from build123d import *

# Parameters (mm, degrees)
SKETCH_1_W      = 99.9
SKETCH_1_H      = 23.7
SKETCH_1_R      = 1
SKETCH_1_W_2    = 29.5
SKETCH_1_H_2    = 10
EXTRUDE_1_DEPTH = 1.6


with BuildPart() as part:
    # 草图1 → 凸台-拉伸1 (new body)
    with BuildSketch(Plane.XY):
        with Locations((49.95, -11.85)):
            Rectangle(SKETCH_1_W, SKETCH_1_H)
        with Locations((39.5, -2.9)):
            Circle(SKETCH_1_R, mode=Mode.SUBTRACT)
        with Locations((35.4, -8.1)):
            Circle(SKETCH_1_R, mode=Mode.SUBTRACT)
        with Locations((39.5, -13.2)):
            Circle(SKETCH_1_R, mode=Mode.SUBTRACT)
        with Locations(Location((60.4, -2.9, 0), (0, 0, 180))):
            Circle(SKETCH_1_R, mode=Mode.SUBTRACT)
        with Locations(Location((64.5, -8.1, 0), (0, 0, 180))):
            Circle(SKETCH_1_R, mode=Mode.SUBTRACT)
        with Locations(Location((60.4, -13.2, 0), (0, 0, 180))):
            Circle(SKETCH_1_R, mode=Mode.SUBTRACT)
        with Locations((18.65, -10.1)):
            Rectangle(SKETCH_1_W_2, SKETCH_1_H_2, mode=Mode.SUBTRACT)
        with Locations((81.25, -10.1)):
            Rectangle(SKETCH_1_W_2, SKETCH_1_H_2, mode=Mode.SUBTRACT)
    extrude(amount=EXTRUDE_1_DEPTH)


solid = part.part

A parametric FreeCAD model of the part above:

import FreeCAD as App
import Part
import Sketcher
from FreeCAD import Vector
Q = App.Units.Quantity

doc = App.newDocument("Part")
body = doc.addObject("PartDesign::Body", "Body")

sketch1 = body.newObject("Sketcher::SketchObject", "Sketch")
sketch1.AttachmentSupport = (doc.getObject("XY_Plane"), [""])
sketch1.MapMode = "FlatFace"
sketch1.addGeometry(Part.LineSegment(Vector(0, 0, 0), Vector(0, -23.7, 0)), False)
sketch1.addGeometry(Part.LineSegment(Vector(0, -23.7, 0), Vector(99.9, -23.7, 0)), False)
sketch1.addGeometry(Part.LineSegment(Vector(99.9, -23.7, 0), Vector(99.9, 0, 0)), False)
sketch1.addGeometry(Part.LineSegment(Vector(99.9, 0, 0), Vector(0, 0, 0)), False)
sketch1.addGeometry(Part.Circle(Vector(39.5, -13.2, 0), Vector(0, 0, 1), 1), False)
sketch1.addGeometry(Part.LineSegment(Vector(33.4, -15.1, 0), Vector(3.9, -15.1, 0)), False)
sketch1.addGeometry(Part.LineSegment(Vector(3.9, -15.1, 0), Vector(3.9, -5.1, 0)), False)
sketch1.addGeometry(Part.LineSegment(Vector(3.9, -5.1, 0), Vector(33.4, -5.1, 0)), False)
sketch1.addGeometry(Part.LineSegment(Vector(33.4, -5.1, 0), Vector(33.4, -15.1, 0)), False)
sketch1.addGeometry(Part.Circle(Vector(60.4, -13.2, 0), Vector(0, 0, 1), 1), False)
sketch1.addGeometry(Part.LineSegment(Vector(96, -15.1, 0), Vector(66.5, -15.1, 0)), False)
sketch1.addGeometry(Part.LineSegment(Vector(66.5, -15.1, 0), Vector(66.5, -5.1, 0)), False)
sketch1.addGeometry(Part.LineSegment(Vector(66.5, -5.1, 0), Vector(96, -5.1, 0)), False)
sketch1.addGeometry(Part.LineSegment(Vector(96, -5.1, 0), Vector(96, -15.1, 0)), False)
sketch1.addGeometry(Part.Circle(Vector(35.4, -8.1, 0), Vector(0, 0, 1), 1), False)
sketch1.addGeometry(Part.Circle(Vector(39.5, -2.9, 0), Vector(0, 0, 1), 1), False)
sketch1.addGeometry(Part.Circle(Vector(64.5, -8.1, 0), Vector(0, 0, 1), 1), False)
sketch1.addGeometry(Part.Circle(Vector(60.4, -2.9, 0), Vector(0, 0, 1), 1), False)
sketch1.addConstraint(Sketcher.Constraint("Coincident", 0, 2, 1, 1))
sketch1.addConstraint(Sketcher.Constraint("Coincident", 1, 2, 2, 1))
sketch1.addConstraint(Sketcher.Constraint("Coincident", 2, 2, 3, 1))
sketch1.addConstraint(Sketcher.Constraint("Coincident", 3, 2, 0, 1))
sketch1.addConstraint(Sketcher.Constraint("Coincident", 5, 2, 6, 1))
sketch1.addConstraint(Sketcher.Constraint("Coincident", 6, 2, 7, 1))
sketch1.addConstraint(Sketcher.Constraint("Coincident", 7, 2, 8, 1))
sketch1.addConstraint(Sketcher.Constraint("Coincident", 8, 2, 5, 1))
sketch1.addConstraint(Sketcher.Constraint("Coincident", 10, 2, 11, 1))
sketch1.addConstraint(Sketcher.Constraint("Coincident", 11, 2, 12, 1))
sketch1.addConstraint(Sketcher.Constraint("Coincident", 12, 2, 13, 1))
sketch1.addConstraint(Sketcher.Constraint("Coincident", 13, 2, 10, 1))
sketch1.addConstraint(Sketcher.Constraint("Vertical", 0))
sketch1.addConstraint(Sketcher.Constraint("Horizontal", 1))
sketch1.addConstraint(Sketcher.Constraint("Vertical", 2))
sketch1.addConstraint(Sketcher.Constraint("Horizontal", 3))
sketch1.addConstraint(Sketcher.Constraint("Horizontal", 5))
sketch1.addConstraint(Sketcher.Constraint("Vertical", 6))
sketch1.addConstraint(Sketcher.Constraint("Horizontal", 7))
sketch1.addConstraint(Sketcher.Constraint("Vertical", 8))
sketch1.addConstraint(Sketcher.Constraint("Horizontal", 10))
sketch1.addConstraint(Sketcher.Constraint("Vertical", 11))
sketch1.addConstraint(Sketcher.Constraint("Horizontal", 12))
sketch1.addConstraint(Sketcher.Constraint("Vertical", 13))
sketch1.addConstraint(Sketcher.Constraint("Coincident", 3, 2, -1, 1))
sketch1.addConstraint(Sketcher.Constraint("Equal", 4, 9))
sketch1.addConstraint(Sketcher.Constraint("Equal", 9, 14))
sketch1.addConstraint(Sketcher.Constraint("Equal", 14, 15))
sketch1.addConstraint(Sketcher.Constraint("Equal", 15, 16))
sketch1.addConstraint(Sketcher.Constraint("Equal", 16, 17))
sketch1.addConstraint(Sketcher.Constraint("Horizontal", 4, 3, 9, 3))
sketch1.addConstraint(Sketcher.Constraint("Horizontal", 14, 3, 16, 3))
sketch1.addConstraint(Sketcher.Constraint("Horizontal", 15, 3, 17, 3))
sketch1.addConstraint(Sketcher.Constraint("Horizontal", 8, 2, 10, 2))
sketch1.addConstraint(Sketcher.Constraint("Horizontal", 7, 2, 11, 2))
sketch1.addConstraint(Sketcher.Constraint("Vertical", 4, 3, 15, 3))
sketch1.addConstraint(Sketcher.Constraint("Vertical", 9, 3, 17, 3))
sketch1.addConstraint(Sketcher.Constraint("Equal", 7, 10))
sketch1.addConstraint(Sketcher.Constraint("Diameter", 4, Q("2 mm")))
sketch1.addConstraint(Sketcher.Constraint("DistanceY", 6, 1, 6, 2, Q("10 mm")))
sketch1.addConstraint(Sketcher.Constraint("DistanceX", 1, 1, 1, 2, Q("99.9 mm")))
sketch1.addConstraint(Sketcher.Constraint("DistanceX", 5, 2, 5, 1, Q("29.5 mm")))
sketch1.addConstraint(Sketcher.Constraint("DistanceY", 0, 2, 0, 1, Q("23.7 mm")))
sketch1.addConstraint(Sketcher.Constraint("DistanceX", -1, 1, 12, 2, Q("96 mm")))
sketch1.addConstraint(Sketcher.Constraint("DistanceX", 14, 3, 9, 3, Q("25 mm")))
sketch1.addConstraint(Sketcher.Constraint("DistanceX", 4, 3, 16, 3, Q("25 mm")))
sketch1.addConstraint(Sketcher.Constraint("DistanceY", 5, 2, 14, 3, Q("7 mm")))
sketch1.addConstraint(Sketcher.Constraint("DistanceX", 7, 2, 14, 3, Q("2 mm")))
sketch1.addConstraint(Sketcher.Constraint("DistanceX", 16, 3, 10, 2, Q("2 mm")))
sketch1.addConstraint(Sketcher.Constraint("DistanceY", 4, 3, -1, 1, Q("13.2 mm")))
sketch1.addConstraint(Sketcher.Constraint("DistanceX", -1, 1, 9, 3, Q("60.4 mm")))
sketch1.addConstraint(Sketcher.Constraint("DistanceY", 14, 3, -1, 1, Q("8.1 mm")))
sketch1.addConstraint(Sketcher.Constraint("DistanceY", 15, 3, -1, 1, Q("2.9 mm")))
pad1 = body.newObject("PartDesign::Pad", "Pad")
pad1.Profile = sketch1
pad1.Length = 1.6

doc.recompute()
